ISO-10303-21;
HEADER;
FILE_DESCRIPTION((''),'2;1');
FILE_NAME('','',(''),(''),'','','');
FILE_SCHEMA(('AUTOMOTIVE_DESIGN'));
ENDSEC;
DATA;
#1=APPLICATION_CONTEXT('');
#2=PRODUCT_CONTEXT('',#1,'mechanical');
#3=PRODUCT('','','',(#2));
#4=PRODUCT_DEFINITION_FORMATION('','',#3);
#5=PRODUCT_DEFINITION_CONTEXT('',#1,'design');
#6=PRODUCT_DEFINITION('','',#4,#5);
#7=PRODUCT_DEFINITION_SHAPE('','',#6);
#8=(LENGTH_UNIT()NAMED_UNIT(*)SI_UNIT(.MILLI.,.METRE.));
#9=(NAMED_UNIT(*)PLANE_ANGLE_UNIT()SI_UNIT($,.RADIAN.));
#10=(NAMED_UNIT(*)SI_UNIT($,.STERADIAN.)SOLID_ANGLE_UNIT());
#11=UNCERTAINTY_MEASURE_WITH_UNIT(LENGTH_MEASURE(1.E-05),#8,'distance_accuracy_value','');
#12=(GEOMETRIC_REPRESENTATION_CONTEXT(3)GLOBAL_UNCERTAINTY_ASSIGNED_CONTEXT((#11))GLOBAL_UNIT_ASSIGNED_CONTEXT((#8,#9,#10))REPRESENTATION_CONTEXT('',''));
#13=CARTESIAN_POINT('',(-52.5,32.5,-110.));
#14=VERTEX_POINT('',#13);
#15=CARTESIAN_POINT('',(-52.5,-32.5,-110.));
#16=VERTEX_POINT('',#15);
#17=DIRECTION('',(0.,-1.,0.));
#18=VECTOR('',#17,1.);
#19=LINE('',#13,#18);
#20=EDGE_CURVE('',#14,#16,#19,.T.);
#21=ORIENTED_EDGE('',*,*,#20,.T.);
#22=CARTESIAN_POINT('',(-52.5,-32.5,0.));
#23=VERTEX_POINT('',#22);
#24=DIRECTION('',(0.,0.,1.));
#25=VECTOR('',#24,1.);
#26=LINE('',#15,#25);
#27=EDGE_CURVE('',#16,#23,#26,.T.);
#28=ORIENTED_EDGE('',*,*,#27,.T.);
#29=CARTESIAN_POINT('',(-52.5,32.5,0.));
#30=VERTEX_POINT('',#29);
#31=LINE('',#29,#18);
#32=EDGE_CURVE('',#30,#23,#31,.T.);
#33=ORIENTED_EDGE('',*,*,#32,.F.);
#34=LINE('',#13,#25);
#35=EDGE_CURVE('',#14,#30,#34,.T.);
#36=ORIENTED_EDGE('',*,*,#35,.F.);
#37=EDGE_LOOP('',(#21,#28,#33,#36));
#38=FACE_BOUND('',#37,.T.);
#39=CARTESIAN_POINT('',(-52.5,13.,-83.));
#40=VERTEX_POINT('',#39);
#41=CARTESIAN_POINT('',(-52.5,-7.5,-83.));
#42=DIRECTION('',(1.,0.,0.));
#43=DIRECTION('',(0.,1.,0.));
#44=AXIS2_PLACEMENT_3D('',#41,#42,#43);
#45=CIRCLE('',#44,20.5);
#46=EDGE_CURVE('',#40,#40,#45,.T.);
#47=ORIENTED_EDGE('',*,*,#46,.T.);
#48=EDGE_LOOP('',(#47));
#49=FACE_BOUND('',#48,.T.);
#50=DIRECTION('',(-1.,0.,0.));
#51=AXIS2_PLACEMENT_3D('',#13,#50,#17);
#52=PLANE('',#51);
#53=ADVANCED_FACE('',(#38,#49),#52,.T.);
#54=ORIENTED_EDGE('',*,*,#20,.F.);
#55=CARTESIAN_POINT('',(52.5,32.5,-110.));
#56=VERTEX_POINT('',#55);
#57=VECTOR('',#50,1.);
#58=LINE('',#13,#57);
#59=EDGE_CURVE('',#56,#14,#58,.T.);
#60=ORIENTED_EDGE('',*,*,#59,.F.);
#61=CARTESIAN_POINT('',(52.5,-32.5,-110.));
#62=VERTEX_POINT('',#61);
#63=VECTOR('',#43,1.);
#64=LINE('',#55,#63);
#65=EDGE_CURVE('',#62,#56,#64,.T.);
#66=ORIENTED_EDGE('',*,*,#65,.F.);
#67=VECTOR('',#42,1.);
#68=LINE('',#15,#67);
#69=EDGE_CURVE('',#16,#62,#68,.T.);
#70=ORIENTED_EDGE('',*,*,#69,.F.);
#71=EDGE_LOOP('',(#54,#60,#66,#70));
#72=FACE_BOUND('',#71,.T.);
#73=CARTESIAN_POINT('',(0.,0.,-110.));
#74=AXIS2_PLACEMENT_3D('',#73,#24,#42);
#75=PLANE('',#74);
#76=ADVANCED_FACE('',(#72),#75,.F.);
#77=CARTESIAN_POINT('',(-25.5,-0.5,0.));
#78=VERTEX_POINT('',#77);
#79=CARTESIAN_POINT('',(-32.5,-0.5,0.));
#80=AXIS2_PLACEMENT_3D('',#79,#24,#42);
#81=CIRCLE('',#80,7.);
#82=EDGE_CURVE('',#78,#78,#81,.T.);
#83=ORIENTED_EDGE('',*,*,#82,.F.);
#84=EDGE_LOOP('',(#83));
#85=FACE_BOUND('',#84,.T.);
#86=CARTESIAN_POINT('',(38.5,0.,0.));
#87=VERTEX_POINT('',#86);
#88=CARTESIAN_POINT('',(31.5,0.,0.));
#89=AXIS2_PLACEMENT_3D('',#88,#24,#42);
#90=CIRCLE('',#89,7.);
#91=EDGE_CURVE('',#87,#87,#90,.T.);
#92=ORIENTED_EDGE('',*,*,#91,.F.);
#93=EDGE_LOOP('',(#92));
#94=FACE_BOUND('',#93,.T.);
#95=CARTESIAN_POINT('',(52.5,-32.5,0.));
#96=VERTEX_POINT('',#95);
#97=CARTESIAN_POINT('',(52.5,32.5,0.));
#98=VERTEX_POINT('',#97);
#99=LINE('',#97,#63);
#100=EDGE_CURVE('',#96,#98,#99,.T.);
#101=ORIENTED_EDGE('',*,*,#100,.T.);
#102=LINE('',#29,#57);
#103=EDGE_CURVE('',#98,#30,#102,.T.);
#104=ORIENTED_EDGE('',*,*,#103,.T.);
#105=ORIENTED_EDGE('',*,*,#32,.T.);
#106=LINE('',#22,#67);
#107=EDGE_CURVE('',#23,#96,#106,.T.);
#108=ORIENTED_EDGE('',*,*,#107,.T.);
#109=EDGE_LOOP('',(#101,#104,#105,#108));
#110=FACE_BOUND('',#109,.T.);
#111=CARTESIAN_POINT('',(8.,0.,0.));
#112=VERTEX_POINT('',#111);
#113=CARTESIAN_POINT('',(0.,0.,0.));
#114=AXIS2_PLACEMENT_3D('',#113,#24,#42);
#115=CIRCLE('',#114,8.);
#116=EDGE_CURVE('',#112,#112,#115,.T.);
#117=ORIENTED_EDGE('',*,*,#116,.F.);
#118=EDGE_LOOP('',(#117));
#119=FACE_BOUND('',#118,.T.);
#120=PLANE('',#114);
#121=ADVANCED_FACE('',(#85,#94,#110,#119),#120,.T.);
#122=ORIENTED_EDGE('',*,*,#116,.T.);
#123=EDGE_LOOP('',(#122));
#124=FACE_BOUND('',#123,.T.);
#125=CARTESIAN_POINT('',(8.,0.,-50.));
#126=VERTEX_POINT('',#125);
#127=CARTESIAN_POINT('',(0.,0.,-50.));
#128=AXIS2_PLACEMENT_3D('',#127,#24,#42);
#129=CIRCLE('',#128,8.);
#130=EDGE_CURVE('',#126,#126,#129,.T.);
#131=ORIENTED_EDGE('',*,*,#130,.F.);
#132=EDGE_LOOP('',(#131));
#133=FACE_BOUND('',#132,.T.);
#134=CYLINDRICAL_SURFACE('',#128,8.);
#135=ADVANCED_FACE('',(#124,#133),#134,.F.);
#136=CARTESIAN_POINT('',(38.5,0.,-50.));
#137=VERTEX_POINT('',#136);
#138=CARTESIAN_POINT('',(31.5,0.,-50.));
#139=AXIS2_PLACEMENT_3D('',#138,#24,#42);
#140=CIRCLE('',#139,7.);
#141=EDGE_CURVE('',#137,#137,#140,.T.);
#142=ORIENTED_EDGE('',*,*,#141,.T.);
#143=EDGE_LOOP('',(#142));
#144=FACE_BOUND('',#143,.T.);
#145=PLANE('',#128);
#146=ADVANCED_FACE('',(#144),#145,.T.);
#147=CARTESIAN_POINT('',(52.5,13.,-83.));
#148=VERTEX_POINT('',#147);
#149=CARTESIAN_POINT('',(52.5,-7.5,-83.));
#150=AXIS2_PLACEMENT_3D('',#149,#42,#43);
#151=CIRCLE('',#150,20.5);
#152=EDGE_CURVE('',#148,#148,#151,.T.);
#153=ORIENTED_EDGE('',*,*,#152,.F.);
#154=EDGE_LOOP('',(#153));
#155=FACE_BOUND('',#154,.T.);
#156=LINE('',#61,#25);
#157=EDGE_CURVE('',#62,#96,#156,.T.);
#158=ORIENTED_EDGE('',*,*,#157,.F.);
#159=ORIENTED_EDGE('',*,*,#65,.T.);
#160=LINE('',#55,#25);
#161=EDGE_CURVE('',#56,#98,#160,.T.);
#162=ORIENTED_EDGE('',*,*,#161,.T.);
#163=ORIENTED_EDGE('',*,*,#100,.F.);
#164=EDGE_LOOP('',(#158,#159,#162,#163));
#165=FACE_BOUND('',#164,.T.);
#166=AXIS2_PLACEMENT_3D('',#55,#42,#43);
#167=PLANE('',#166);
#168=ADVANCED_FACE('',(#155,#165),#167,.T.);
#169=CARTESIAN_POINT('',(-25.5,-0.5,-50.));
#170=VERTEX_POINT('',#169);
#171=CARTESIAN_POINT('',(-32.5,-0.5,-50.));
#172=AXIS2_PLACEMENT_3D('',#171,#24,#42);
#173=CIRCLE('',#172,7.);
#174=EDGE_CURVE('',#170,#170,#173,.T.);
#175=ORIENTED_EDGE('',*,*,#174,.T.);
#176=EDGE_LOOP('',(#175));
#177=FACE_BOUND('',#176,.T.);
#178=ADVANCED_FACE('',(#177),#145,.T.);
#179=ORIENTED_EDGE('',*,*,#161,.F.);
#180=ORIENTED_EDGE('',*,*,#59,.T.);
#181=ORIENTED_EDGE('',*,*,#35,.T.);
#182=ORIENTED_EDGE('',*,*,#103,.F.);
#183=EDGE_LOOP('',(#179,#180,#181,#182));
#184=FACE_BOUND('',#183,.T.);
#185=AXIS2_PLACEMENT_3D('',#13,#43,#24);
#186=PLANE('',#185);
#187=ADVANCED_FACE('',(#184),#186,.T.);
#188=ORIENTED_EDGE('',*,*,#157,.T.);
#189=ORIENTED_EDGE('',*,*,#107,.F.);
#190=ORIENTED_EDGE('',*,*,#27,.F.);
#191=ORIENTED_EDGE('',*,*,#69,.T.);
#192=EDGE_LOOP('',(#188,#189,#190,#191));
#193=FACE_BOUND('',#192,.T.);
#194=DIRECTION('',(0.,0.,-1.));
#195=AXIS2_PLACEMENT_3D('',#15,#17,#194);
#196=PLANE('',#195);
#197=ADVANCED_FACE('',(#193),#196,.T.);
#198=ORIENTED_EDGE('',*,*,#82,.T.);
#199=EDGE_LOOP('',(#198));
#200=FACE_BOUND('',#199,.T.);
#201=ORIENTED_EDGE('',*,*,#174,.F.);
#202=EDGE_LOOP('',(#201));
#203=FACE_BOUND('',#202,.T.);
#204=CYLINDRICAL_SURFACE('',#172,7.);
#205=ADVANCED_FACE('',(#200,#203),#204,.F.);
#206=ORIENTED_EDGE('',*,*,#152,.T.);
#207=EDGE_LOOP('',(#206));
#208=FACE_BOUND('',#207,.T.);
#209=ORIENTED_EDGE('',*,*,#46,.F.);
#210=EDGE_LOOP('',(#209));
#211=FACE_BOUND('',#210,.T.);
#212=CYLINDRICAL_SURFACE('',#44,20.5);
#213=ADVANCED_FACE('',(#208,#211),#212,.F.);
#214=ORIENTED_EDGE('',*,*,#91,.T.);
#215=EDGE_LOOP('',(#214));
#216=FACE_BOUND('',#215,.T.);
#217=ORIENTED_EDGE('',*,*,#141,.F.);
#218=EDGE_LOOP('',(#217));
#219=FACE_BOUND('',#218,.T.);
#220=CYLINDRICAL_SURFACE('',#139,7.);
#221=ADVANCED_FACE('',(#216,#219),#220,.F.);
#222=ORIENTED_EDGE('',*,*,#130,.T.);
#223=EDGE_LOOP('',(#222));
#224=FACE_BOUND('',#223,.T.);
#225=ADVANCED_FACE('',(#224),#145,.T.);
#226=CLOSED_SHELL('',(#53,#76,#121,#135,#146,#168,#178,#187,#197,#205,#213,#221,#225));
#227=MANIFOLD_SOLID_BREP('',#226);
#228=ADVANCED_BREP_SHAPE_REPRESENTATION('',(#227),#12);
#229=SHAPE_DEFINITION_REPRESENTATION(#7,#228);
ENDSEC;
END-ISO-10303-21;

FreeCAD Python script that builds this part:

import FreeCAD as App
import Part
import Sketcher

V = App.Vector


def add_polygon(sketch, points):
    """Adds a closed chain of lines whose ends are joined by coincident constraints."""
    first, n = sketch.GeometryCount, len(points)
    for a, b in zip(points, points[1:] + points[:1]):
        sketch.addGeometry(Part.LineSegment(App.Vector(*a, 0), App.Vector(*b, 0)), False)
    for i in range(n):
        sketch.addConstraint(Sketcher.Constraint("Coincident", first + i, 2, first + (i + 1) % n, 1))

doc = App.newDocument("Part")
params = doc.addObject("Spreadsheet::Sheet", "Params")
for row, (alias, value) in enumerate([
    ("sketch1_width", "105 mm"),
    ("sketch1_height", "65 mm"),
    ("pad1_length", "110 mm"),
    ("sketch2_diameter", "14 mm"),
    ("sketch2_diameter2", "16 mm"),
    ("pocket1_length", "50 mm"),
    ("sketch3_diameter", "41 mm"),
], start=1):
    params.set(f"A{row}", alias)
    params.set(f"B{row}", "=" + value)
    params.setAlias(f"B{row}", alias)

body = doc.addObject("PartDesign::Body", "Body")

# Sketch on XY plane
sketch1 = doc.addObject("Sketcher::SketchObject", "Sketch")
body.addObject(sketch1)
sketch1.AttachmentSupport = (doc.XY_Plane, [""])
sketch1.MapMode = "FlatFace"
add_polygon(sketch1, [(-52, 32), (-52, -32), (52, -32), (52, 32)])  # lines 0-3
sketch1.addConstraint([
    Sketcher.Constraint("Vertical", 0),
    Sketcher.Constraint("Horizontal", 1),
    Sketcher.Constraint("Vertical", 2),
    Sketcher.Constraint("Horizontal", 3),
    Sketcher.Constraint("Symmetric", 0, 2, 2, 2, -1, 1),
    Sketcher.Constraint("DistanceX", 1, 1, 1, 2, 105.0),
    Sketcher.Constraint("DistanceY", 0, 2, 0, 1, 65.0),
])
sketch1.setExpression("Constraints[9]", "Params.sketch1_width")
sketch1.setExpression("Constraints[10]", "Params.sketch1_height")
pad1 = doc.addObject("PartDesign::Pad", "Pad")
body.addObject(pad1)
pad1.Profile = sketch1
pad1.setExpression("Length", "Params.pad1_length")
pad1.Reversed = True

# Sketch on XY plane
sketch2 = doc.addObject("Sketcher::SketchObject", "Sketch001")
body.addObject(sketch2)
sketch2.AttachmentSupport = (doc.XY_Plane, [""])
sketch2.MapMode = "FlatFace"
sketch2.addGeometry([
    Part.Circle(V(-32, 0, 0), V(0, 0, 1), 7),
    Part.Circle(V(32, 0, 0), V(0, 0, 1), 7),
    Part.Circle(V(0, 0, 0), V(0, 0, 1), 8),
], False)
sketch2.addConstraint([
    Sketcher.Constraint("Coincident", 2, 3, -1, 1),
    Sketcher.Constraint("Equal", 0, 1),
    Sketcher.Constraint("PointOnObject", 1, 3, -1),
    Sketcher.Constraint("Diameter", 0, 14.0),
    Sketcher.Constraint("Diameter", 2, 16.0),
    Sketcher.Constraint("DistanceX", 0, 3, 1, 3, 64.0),
    Sketcher.Constraint("DistanceX", 0, 3, -1, 1, 32.5),
    Sketcher.Constraint("DistanceY", 0, 3, -1, 1, 0.5),
])
sketch2.setExpression("Constraints[3]", "Params.sketch2_diameter")
sketch2.setExpression("Constraints[4]", "Params.sketch2_diameter2")
pocket1 = doc.addObject("PartDesign::Pocket", "Pocket")
body.addObject(pocket1)
pocket1.Profile = sketch2
pocket1.setExpression("Length", "Params.pocket1_length")

# Sketch on YZ plane
sketch3 = doc.addObject("Sketcher::SketchObject", "Sketch002")
body.addObject(sketch3)
sketch3.AttachmentSupport = (doc.YZ_Plane, [""])
sketch3.MapMode = "FlatFace"
sketch3.AttachmentOffset = App.Placement(V(0, 0, 52.5), App.Rotation())
sketch3.addGeometry(Part.Circle(V(-8, -83, 0), V(0, 0, 1), 20), False)
sketch3.addConstraint([
    Sketcher.Constraint("Diameter", 0, 41.0),
    Sketcher.Constraint("DistanceY", 0, 3, -1, 1, 83.0),
    Sketcher.Constraint("DistanceX", 0, 3, -1, 1, 7.5),
])
sketch3.setExpression("Constraints[0]", "Params.sketch3_diameter")
pocket2 = doc.addObject("PartDesign::Pocket", "Pocket001")
body.addObject(pocket2)
pocket2.Profile = sketch3
pocket2.Type = "ThroughAll"

doc.recompute()
